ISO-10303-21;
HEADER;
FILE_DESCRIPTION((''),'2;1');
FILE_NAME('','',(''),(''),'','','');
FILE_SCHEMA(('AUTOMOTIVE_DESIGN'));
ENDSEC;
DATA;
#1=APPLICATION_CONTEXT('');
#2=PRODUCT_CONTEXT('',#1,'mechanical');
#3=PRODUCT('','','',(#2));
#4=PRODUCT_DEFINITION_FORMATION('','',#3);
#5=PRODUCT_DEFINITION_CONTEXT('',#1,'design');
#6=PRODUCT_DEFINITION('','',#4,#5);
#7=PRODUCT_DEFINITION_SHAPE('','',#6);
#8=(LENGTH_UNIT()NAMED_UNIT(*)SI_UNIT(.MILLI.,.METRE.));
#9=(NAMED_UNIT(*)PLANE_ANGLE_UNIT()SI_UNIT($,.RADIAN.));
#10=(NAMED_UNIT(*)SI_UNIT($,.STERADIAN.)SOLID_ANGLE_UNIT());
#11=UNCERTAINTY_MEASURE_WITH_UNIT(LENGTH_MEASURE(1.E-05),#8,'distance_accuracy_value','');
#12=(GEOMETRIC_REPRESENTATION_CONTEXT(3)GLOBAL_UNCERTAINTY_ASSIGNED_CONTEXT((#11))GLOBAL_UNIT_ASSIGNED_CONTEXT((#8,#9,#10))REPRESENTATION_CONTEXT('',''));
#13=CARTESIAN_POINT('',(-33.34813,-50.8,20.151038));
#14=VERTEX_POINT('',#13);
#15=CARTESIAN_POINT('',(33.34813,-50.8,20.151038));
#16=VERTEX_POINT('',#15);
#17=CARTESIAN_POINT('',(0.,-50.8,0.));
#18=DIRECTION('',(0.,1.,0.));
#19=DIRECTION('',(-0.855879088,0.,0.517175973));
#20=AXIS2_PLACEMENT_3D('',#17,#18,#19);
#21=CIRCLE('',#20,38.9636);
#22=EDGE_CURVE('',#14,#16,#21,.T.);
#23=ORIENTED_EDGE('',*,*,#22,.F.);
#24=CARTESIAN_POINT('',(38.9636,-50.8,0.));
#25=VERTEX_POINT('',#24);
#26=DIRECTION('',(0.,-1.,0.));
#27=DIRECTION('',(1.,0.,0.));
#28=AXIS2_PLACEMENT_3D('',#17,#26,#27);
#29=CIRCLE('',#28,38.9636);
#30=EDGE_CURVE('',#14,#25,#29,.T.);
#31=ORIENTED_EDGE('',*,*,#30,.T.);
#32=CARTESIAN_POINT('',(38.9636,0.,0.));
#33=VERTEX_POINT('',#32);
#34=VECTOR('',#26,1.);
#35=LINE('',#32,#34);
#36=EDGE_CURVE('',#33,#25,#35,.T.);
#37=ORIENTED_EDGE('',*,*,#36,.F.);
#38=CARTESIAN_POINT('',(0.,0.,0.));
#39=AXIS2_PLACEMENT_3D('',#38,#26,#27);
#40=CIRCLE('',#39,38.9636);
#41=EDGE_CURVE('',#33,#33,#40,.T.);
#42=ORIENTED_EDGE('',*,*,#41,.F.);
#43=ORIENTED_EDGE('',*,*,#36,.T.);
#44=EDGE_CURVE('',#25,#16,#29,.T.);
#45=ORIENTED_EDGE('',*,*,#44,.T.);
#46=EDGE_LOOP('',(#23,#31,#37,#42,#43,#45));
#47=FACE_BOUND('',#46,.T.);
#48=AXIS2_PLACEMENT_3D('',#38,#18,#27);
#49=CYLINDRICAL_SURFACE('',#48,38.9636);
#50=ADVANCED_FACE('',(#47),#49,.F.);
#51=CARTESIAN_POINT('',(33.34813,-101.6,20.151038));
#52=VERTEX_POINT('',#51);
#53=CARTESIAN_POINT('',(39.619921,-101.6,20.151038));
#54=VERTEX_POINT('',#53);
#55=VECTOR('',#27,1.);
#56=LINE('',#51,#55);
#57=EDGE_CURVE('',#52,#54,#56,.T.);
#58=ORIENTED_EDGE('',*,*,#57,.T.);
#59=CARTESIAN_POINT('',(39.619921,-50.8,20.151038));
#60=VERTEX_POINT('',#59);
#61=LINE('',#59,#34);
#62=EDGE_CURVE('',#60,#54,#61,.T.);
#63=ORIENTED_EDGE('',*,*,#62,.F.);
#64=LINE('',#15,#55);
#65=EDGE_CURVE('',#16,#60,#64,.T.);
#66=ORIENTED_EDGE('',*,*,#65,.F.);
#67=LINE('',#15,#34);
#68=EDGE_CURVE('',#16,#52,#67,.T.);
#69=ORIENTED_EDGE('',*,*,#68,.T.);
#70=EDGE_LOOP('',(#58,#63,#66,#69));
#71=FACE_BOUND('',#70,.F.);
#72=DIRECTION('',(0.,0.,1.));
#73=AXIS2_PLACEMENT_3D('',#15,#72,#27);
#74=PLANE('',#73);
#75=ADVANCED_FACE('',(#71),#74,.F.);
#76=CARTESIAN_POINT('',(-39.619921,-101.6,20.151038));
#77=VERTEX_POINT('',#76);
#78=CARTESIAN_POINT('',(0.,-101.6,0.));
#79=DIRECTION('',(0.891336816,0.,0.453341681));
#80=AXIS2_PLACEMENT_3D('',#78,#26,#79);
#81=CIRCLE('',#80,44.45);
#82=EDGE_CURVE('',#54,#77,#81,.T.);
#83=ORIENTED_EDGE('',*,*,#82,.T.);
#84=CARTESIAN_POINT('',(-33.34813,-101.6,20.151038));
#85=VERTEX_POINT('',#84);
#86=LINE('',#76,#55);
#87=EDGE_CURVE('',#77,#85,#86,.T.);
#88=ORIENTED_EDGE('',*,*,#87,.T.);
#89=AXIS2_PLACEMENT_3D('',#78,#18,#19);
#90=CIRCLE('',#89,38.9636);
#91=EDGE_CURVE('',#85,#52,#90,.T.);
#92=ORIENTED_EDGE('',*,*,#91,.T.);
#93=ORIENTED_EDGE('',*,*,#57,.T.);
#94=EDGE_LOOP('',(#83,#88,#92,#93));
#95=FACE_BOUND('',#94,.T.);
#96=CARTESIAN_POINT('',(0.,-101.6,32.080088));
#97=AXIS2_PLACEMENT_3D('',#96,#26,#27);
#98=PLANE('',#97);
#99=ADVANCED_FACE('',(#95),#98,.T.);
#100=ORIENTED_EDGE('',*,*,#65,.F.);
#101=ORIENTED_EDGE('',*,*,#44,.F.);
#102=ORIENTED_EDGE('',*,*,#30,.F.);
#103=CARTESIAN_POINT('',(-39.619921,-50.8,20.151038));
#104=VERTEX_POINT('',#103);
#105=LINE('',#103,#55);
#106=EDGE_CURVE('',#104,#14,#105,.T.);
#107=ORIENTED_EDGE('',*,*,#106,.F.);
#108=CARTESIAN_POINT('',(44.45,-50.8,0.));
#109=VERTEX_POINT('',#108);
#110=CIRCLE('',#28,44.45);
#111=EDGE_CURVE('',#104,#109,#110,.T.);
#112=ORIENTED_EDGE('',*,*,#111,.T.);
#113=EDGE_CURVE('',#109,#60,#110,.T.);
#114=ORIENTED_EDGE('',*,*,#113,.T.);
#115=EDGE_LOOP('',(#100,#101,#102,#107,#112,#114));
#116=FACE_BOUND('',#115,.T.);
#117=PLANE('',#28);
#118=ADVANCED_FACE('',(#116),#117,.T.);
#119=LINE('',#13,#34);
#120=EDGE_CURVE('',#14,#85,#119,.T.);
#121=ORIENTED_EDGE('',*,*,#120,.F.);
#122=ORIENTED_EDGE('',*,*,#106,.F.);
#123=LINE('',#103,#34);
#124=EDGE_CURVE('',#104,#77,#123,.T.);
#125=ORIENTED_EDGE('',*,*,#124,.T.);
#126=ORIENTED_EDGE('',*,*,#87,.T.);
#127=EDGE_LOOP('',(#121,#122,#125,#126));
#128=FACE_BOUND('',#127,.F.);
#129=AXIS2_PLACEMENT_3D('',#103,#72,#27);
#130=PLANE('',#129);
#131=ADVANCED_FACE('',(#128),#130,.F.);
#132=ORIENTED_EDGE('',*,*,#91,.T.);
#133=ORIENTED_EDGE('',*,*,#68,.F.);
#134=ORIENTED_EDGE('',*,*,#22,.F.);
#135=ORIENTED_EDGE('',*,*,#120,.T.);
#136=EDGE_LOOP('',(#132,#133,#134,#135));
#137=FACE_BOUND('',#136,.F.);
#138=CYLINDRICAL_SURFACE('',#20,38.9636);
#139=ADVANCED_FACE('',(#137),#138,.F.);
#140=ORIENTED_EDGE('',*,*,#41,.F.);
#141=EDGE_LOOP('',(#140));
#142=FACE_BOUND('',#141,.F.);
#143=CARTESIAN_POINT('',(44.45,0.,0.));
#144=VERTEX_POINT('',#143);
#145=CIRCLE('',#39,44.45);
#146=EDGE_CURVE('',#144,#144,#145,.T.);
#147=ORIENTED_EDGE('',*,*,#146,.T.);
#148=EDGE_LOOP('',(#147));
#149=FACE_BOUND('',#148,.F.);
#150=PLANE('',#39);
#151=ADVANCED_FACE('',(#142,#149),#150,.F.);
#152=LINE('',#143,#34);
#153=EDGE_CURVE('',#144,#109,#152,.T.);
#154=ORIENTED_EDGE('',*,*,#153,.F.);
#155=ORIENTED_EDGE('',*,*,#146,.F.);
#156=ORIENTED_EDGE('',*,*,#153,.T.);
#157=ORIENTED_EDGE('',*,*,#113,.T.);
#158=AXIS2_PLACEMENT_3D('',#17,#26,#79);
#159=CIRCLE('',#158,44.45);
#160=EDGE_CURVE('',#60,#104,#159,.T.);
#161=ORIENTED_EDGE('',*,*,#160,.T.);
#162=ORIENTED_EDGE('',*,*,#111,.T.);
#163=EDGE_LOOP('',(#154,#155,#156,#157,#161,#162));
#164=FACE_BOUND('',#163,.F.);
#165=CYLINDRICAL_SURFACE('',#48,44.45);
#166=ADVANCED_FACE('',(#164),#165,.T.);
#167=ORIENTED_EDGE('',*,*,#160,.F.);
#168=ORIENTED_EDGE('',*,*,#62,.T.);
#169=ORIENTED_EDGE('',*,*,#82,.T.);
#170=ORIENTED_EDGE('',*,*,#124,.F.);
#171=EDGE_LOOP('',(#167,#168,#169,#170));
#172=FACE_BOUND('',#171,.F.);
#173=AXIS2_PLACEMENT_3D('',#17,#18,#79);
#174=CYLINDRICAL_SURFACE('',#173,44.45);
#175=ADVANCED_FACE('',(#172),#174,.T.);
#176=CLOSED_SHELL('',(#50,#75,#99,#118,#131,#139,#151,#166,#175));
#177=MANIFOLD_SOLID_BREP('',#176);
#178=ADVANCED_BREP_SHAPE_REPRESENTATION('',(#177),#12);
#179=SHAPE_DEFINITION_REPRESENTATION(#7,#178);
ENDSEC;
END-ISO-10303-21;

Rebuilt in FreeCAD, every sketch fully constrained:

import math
import FreeCAD as App
import Part
import Sketcher
from FreeCAD import Vector
Q = App.Units.Quantity

doc = App.newDocument("Part")
body = doc.addObject("PartDesign::Body", "Body")

sketch1 = body.newObject("Sketcher::SketchObject", "Sketch")
sketch1.AttachmentSupport = (doc.getObject("XZ_Plane"), [""])
sketch1.MapMode = "FlatFace"
sketch1.addGeometry([
    Part.Circle(Vector(0, 0, 0), Vector(0, 0, 1), 44),
    Part.Circle(Vector(0, 0, 0), Vector(0, 0, 1), 39),
], False)
sketch1.addConstraint([
    Sketcher.Constraint("Coincident", 0, 3, -1, 1),
    Sketcher.Constraint("Coincident", 1, 3, -1, 1),
    Sketcher.Constraint("Diameter", 0, Q("3.5 in")),
    Sketcher.Constraint("Diameter", 1, Q("3.068 in")),
])
pad1 = body.newObject("PartDesign::Pad", "Pad")
pad1.Profile = sketch1
pad1.Length = Q("2 in")

sketch2 = body.newObject("Sketcher::SketchObject", "Sketch001")
sketch2.AttachmentSupport = (doc.getObject("XZ_Plane"), [""])
sketch2.MapMode = "FlatFace"
sketch2.AttachmentOffset = App.Placement(Vector(0, 0, 2 * 25.4), App.Rotation())
sketch2.addGeometry([
    Part.LineSegment(Vector(33, 20, 0), Vector(40, 20, 0)),
    Part.ArcOfCircle(Part.Circle(Vector(0, 0, 0), Vector(0, 0, 1), 44), math.radians(27), math.radians(153)),
    Part.LineSegment(Vector(-40, 20, 0), Vector(-33, 20, 0)),
    Part.ArcOfCircle(Part.Circle(Vector(0, 0, 0), Vector(0, 0, 1), 39), math.radians(31), math.radians(149)),
], False)
sketch2.addConstraint([
    Sketcher.Constraint("Coincident", 0, 2, 1, 1),
    Sketcher.Constraint("Coincident", 1, 2, 2, 1),
    Sketcher.Constraint("Coincident", 2, 2, 3, 2),
    Sketcher.Constraint("Coincident", 3, 1, 0, 1),
    Sketcher.Constraint("Horizontal", 0),
    Sketcher.Constraint("Horizontal", 2),
    Sketcher.Constraint("Coincident", 1, 3, -1, 1),
    Sketcher.Constraint("Coincident", 3, 3, -1, 1),
    Sketcher.Constraint("Horizontal", 0, 2, 1, 2),
    Sketcher.Constraint("Radius", 1, Q("1.75 in")),
    Sketcher.Constraint("Radius", 3, Q("1.534 in")),
    Sketcher.Constraint("DistanceX", 0, 1, 0, 2, 6.271791),
])
pad2 = body.newObject("PartDesign::Pad", "Pad001")
pad2.Profile = sketch2
pad2.Length = Q("2 in")

doc.recompute()
